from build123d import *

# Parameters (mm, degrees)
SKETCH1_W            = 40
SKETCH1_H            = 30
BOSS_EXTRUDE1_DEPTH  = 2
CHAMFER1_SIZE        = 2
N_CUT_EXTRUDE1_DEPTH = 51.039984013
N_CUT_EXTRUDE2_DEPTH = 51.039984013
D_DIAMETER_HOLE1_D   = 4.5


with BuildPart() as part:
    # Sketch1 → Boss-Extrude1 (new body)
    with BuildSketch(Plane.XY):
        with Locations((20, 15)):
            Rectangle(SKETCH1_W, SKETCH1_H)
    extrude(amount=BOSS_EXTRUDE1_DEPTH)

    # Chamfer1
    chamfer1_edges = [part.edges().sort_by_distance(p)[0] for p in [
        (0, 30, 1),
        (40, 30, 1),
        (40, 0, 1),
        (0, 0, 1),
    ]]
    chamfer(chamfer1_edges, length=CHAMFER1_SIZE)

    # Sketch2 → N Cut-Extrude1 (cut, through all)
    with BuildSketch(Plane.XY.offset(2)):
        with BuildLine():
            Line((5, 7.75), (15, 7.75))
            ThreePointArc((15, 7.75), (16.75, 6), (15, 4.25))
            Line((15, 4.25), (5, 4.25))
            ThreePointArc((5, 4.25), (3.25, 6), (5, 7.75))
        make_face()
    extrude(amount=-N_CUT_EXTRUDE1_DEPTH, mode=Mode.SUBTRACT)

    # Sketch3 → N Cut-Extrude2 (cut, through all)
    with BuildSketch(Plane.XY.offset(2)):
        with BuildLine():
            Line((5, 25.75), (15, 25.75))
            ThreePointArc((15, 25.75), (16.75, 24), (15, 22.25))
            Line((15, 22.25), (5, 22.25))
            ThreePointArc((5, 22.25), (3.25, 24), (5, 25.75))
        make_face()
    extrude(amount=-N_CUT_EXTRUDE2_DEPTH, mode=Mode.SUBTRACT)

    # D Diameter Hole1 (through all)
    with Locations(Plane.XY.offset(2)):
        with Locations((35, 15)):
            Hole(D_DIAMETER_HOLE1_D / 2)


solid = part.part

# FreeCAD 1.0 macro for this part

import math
import FreeCAD as App
import Part
import Sketcher
from FreeCAD import Vector
Q = App.Units.Quantity


def edges_at(feature, points):
    """Names of the edges that pass closest to the given points."""
    edges = feature.Shape.Edges
    near = lambda p: min(range(len(edges)), key=lambda i: edges[i].distToShape(Part.Vertex(*p))[0])
    return sorted({f"Edge{near(p) + 1}" for p in points})


def add_polygon(sketch, points):
    """Adds a closed chain of lines whose ends are joined by coincident constraints."""
    first, n = sketch.GeometryCount, len(points)
    for a, b in zip(points, points[1:] + points[:1]):
        sketch.addGeometry(Part.LineSegment(App.Vector(*a, 0), App.Vector(*b, 0)), False)
    for i in range(n):
        sketch.addConstraint(Sketcher.Constraint("Coincident", first + i, 2, first + (i + 1) % n, 1))

doc = App.newDocument("Part")
body = doc.addObject("PartDesign::Body", "Body")

# Sketch on XY plane
sketch1 = body.newObject("Sketcher::SketchObject", "Sketch")
sketch1.AttachmentSupport = (doc.getObject("XY_Plane"), [""])
sketch1.MapMode = "FlatFace"
add_polygon(sketch1, [(0, 30), (0, 0), (40, 0), (40, 30)])  # lines 0-3
sketch1.addConstraint(Sketcher.Constraint("Vertical", 0))
sketch1.addConstraint(Sketcher.Constraint("Horizontal", 1))
sketch1.addConstraint(Sketcher.Constraint("Vertical", 2))
sketch1.addConstraint(Sketcher.Constraint("Horizontal", 3))
sketch1.addConstraint(Sketcher.Constraint("Coincident", 0, 2, -1, 1))
sketch1.addConstraint(Sketcher.Constraint("DistanceX", 1, 1, 1, 2, Q("40 mm")))
sketch1.addConstraint(Sketcher.Constraint("DistanceY", 0, 2, 0, 1, Q("30 mm")))
pad1 = body.newObject("PartDesign::Pad", "Pad")
pad1.Profile = sketch1
pad1.Length = 2
doc.recompute()

chamfer = body.newObject("PartDesign::Chamfer", "Chamfer")
chamfer.Base = (pad1, edges_at(pad1, [
    (0, 30, 1),
    (40, 30, 1),
    (40, 0, 1),
    (0, 0, 1),
]))
chamfer.Size = 2

# Sketch on XY plane
sketch2 = body.newObject("Sketcher::SketchObject", "Sketch001")
sketch2.AttachmentSupport = (doc.getObject("XY_Plane"), [""])
sketch2.MapMode = "FlatFace"
sketch2.AttachmentOffset = App.Placement(Vector(0, 0, 2), App.Rotation())
sketch2.addGeometry(Part.LineSegment(Vector(15, 7.75, 0), Vector(5, 7.75, 0)), False)
sketch2.addGeometry(Part.ArcOfCircle(Part.Circle(Vector(5, 6, 0), Vector(0, 0, 1), 1.75), math.radians(90), math.radians(270)), False)
sketch2.addGeometry(Part.LineSegment(Vector(5, 4.25, 0), Vector(15, 4.25, 0)), False)
sketch2.addGeometry(Part.ArcOfCircle(Part.Circle(Vector(15, 6, 0), Vector(0, 0, 1), 1.75), math.radians(-90), math.radians(90)), False)
sketch2.addConstraint(Sketcher.Constraint("Tangent", 0, 2, 1, 1))
sketch2.addConstraint(Sketcher.Constraint("Tangent", 1, 2, 2, 1))
sketch2.addConstraint(Sketcher.Constraint("Tangent", 2, 2, 3, 1))
sketch2.addConstraint(Sketcher.Constraint("Tangent", 3, 2, 0, 1))
sketch2.addConstraint(Sketcher.Constraint("Horizontal", 0))
sketch2.addConstraint(Sketcher.Constraint("Horizontal", 2))
sketch2.addConstraint(Sketcher.Constraint("DistanceX", 0, 2, 0, 1, Q("10 mm")))
sketch2.addConstraint(Sketcher.Constraint("Radius", 1, Q("1.75 mm")))
sketch2.addConstraint(Sketcher.Constraint("DistanceX", -1, 1, 1, 3, Q("5 mm")))
sketch2.addConstraint(Sketcher.Constraint("DistanceY", -1, 1, 1, 3, Q("6 mm")))
pocket1 = body.newObject("PartDesign::Pocket", "Pocket")
pocket1.Profile = sketch2
pocket1.Type = "ThroughAll"

# Sketch on XY plane
sketch3 = body.newObject("Sketcher::SketchObject", "Sketch002")
sketch3.AttachmentSupport = (doc.getObject("XY_Plane"), [""])
sketch3.MapMode = "FlatFace"
sketch3.AttachmentOffset = App.Placement(Vector(0, 0, 2), App.Rotation())
sketch3.addGeometry(Part.LineSegment(Vector(15, 25.75, 0), Vector(5, 25.75, 0)), False)
sketch3.addGeometry(Part.ArcOfCircle(Part.Circle(Vector(5, 24, 0), Vector(0, 0, 1), 1.75), math.radians(90), math.radians(270)), False)
sketch3.addGeometry(Part.LineSegment(Vector(5, 22.25, 0), Vector(15, 22.25, 0)), False)
sketch3.addGeometry(Part.ArcOfCircle(Part.Circle(Vector(15, 24, 0), Vector(0, 0, 1), 1.75), math.radians(-90), math.radians(90)), False)
sketch3.addConstraint(Sketcher.Constraint("Tangent", 0, 2, 1, 1))
sketch3.addConstraint(Sketcher.Constraint("Tangent", 1, 2, 2, 1))
sketch3.addConstraint(Sketcher.Constraint("Tangent", 2, 2, 3, 1))
sketch3.addConstraint(Sketcher.Constraint("Tangent", 3, 2, 0, 1))
sketch3.addConstraint(Sketcher.Constraint("Horizontal", 0))
sketch3.addConstraint(Sketcher.Constraint("Horizontal", 2))
sketch3.addConstraint(Sketcher.Constraint("DistanceX", 0, 2, 0, 1, Q("10 mm")))
sketch3.addConstraint(Sketcher.Constraint("Radius", 1, Q("1.75 mm")))
sketch3.addConstraint(Sketcher.Constraint("DistanceX", -1, 1, 1, 3, Q("5 mm")))
sketch3.addConstraint(Sketcher.Constraint("DistanceY", -1, 1, 1, 3, Q("24 mm")))
pocket2 = body.newObject("PartDesign::Pocket", "Pocket001")
pocket2.Profile = sketch3
pocket2.Type = "ThroughAll"

# Sketch on XY plane
sketch4 = body.newObject("Sketcher::SketchObject", "Sketch003")
sketch4.AttachmentSupport = (doc.getObject("XY_Plane"), [""])
sketch4.MapMode = "FlatFace"
sketch4.AttachmentOffset = App.Placement(Vector(0, 0, 2), App.Rotation())
sketch4.addGeometry(Part.Circle(Vector(35, 15, 0), Vector(0, 0, 1), 2.25), False)
sketch4.addConstraint(Sketcher.Constraint("Diameter", 0, Q("4.5 mm")))
sketch4.addConstraint(Sketcher.Constraint("DistanceX", -1, 1, 0, 3, Q("35 mm")))
sketch4.addConstraint(Sketcher.Constraint("DistanceY", -1, 1, 0, 3, Q("15 mm")))
doc.recompute()
hole = body.newObject("PartDesign::Hole", "Hole")
hole.Profile = sketch4
hole.ThreadType = "None"
hole.Diameter = 4.5
hole.DepthType = "ThroughAll"

doc.recompute()
